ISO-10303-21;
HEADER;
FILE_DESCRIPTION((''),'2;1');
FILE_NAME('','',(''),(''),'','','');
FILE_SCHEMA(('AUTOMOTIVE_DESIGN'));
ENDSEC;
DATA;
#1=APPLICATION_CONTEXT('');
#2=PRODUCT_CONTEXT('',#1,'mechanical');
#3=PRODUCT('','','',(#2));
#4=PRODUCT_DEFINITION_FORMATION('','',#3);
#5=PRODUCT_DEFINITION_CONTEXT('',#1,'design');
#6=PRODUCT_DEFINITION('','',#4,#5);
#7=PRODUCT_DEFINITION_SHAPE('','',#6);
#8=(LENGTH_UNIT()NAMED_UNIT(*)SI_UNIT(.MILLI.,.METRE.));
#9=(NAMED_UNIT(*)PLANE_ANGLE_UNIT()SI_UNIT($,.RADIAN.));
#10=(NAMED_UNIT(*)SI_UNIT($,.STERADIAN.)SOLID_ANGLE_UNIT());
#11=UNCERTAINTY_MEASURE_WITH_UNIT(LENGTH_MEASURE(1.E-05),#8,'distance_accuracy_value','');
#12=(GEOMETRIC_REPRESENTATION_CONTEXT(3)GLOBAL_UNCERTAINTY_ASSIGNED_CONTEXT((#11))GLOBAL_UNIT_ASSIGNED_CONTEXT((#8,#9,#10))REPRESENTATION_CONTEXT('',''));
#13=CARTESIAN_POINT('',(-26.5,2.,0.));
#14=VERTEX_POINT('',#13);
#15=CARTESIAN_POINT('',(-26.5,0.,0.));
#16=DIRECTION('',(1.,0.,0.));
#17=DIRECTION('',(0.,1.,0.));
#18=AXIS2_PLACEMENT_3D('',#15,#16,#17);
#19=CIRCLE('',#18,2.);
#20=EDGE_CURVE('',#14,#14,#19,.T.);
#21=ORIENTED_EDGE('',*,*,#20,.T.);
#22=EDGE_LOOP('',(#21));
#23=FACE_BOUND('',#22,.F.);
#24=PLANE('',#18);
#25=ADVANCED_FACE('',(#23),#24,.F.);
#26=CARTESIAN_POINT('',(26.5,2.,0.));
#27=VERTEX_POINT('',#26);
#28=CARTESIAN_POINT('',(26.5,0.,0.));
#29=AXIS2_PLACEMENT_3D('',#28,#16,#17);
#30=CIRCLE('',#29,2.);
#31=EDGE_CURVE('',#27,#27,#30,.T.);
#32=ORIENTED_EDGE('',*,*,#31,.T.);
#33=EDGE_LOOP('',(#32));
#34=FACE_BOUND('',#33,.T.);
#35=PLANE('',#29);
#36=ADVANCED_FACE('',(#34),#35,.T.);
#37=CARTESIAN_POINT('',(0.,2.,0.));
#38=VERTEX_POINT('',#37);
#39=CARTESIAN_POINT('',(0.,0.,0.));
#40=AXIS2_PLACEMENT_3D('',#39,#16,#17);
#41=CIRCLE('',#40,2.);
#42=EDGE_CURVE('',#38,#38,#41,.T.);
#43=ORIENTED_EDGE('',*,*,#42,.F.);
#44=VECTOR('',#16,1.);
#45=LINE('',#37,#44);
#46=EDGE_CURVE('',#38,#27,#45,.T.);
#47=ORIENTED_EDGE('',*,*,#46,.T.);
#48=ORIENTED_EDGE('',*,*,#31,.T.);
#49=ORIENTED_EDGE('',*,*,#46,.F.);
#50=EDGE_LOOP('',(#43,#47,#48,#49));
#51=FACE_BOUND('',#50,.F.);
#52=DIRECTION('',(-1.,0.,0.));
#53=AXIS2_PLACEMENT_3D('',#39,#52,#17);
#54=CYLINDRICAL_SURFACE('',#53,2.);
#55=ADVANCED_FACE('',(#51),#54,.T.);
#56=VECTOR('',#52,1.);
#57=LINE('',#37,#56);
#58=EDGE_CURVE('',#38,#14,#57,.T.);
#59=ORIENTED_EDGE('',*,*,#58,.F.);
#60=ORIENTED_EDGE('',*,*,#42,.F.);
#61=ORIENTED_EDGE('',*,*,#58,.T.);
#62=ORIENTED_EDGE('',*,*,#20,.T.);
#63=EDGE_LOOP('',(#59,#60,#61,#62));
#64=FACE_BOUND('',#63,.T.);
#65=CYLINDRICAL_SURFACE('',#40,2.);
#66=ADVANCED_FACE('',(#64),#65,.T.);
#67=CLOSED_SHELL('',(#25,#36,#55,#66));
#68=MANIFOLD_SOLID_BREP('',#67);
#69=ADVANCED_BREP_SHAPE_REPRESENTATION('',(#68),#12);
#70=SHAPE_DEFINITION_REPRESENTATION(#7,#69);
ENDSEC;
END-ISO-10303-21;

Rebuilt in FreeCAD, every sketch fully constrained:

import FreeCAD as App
import Part
import Sketcher

V = App.Vector

doc = App.newDocument("Part")
body = doc.addObject("PartDesign::Body", "Body")

# Sketch on YZ plane
sketch1 = body.newObject("Sketcher::SketchObject", "Sketch")
sketch1.AttachmentSupport = (doc.getObject("YZ_Plane"), [""])
sketch1.MapMode = "FlatFace"
sketch1.addGeometry(Part.Circle(V(0, 0, 0), V(0, 0, 1), 2), False)
sketch1.addConstraint([
    Sketcher.Constraint("Coincident", 0, 3, -1, 1),
    Sketcher.Constraint("Diameter", 0, 4.0),
])
pad1 = body.newObject("PartDesign::Pad", "Pad")
pad1.Profile = sketch1
pad1.Length = 53
pad1.Midplane = True

doc.recompute()
